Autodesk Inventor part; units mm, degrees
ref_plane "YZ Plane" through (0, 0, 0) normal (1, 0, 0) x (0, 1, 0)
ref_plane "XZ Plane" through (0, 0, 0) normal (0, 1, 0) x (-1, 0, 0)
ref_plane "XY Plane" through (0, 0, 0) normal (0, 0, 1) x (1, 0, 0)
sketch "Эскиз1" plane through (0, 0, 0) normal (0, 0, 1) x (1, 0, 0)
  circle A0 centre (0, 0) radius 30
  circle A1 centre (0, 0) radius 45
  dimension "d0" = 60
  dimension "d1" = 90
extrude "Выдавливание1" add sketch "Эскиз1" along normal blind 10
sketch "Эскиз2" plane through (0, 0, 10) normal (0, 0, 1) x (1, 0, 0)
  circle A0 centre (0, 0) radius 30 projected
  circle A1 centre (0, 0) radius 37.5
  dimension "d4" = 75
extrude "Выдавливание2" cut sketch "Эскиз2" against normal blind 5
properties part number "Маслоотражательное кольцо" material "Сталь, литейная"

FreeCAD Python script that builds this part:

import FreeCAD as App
import Part
import Sketcher

V = App.Vector

doc = App.newDocument("Part")
body = doc.addObject("PartDesign::Body", "Body")

# Sketch on XY plane
sketch1 = body.newObject("Sketcher::SketchObject", "Sketch")
sketch1.AttachmentSupport = (doc.getObject("XY_Plane"), [""])
sketch1.MapMode = "FlatFace"
sketch1.addGeometry([
    Part.Circle(V(0, 0, 0), V(0, 0, 1), 45),
    Part.Circle(V(0, 0, 0), V(0, 0, 1), 30),
], False)
sketch1.addConstraint([
    Sketcher.Constraint("Coincident", 0, 3, -1, 1),
    Sketcher.Constraint("Coincident", 1, 3, -1, 1),
    Sketcher.Constraint("Diameter", 0, 90.0),
    Sketcher.Constraint("Diameter", 1, 60.0),
])
pad1 = body.newObject("PartDesign::Pad", "Pad")
pad1.Profile = sketch1
pad1.Length = 10

# Sketch on XY plane
sketch2 = body.newObject("Sketcher::SketchObject", "Sketch001")
sketch2.AttachmentSupport = (doc.getObject("XY_Plane"), [""])
sketch2.MapMode = "FlatFace"
sketch2.AttachmentOffset = App.Placement(V(0, 0, 10), App.Rotation())
sketch2.addGeometry([
    Part.Circle(V(0, 0, 0), V(0, 0, 1), 38),
    Part.Circle(V(0, 0, 0), V(0, 0, 1), 30),
], False)
sketch2.addConstraint([
    Sketcher.Constraint("Coincident", 0, 3, -1, 1),
    Sketcher.Constraint("Coincident", 1, 3, -1, 1),
    Sketcher.Constraint("Diameter", 0, 75.0),
    Sketcher.Constraint("Diameter", 1, 60.0),
])
pocket1 = body.newObject("PartDesign::Pocket", "Pocket")
pocket1.Profile = sketch2
pocket1.Length = 5

doc.recompute()
